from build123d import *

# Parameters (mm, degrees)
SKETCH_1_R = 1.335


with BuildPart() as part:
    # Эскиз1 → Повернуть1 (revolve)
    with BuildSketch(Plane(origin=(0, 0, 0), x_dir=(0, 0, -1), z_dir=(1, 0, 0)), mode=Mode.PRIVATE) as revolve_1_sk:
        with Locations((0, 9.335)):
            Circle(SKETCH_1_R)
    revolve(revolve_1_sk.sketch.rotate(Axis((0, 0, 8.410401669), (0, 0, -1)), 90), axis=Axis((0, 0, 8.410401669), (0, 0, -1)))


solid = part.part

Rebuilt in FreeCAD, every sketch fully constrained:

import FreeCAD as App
import Part
import Sketcher
from FreeCAD import Vector

doc = App.newDocument("Part")
params = doc.addObject("Spreadsheet::Sheet", "Params")
for row, (alias, value) in enumerate([
    ("sketch1_diameter", "2.67 mm"),
    ("revolution_angle", "360 deg"),
], start=1):
    params.set(f"A{row}", alias)
    params.set(f"B{row}", "=" + value)
    params.setAlias(f"B{row}", alias)

body = doc.addObject("PartDesign::Body", "Body")

# Sketch on YZ plane
sketch1 = body.newObject("Sketcher::SketchObject", "Sketch")
sketch1.AttachmentSupport = (doc.getObject("YZ_Plane"), [""])
sketch1.MapMode = "FlatFace"
sketch1.addGeometry(Part.Circle(Vector(9.3, 0, 0), Vector(0, 0, 1), 1.3), False)
sketch1.addConstraint([
    Sketcher.Constraint("PointOnObject", 0, 3, -1),
    Sketcher.Constraint("Diameter", 0, 2.67),
    Sketcher.Constraint("DistanceX", -1, 1, 0, 3, 9.335),
])
sketch1.setExpression("Constraints[1]", "Params.sketch1_diameter")
revolution = body.newObject("PartDesign::Revolution", "Revolution")
revolution.Profile = sketch1
revolution.ReferenceAxis = (sketch1, ["V_Axis"])
revolution.setExpression("Angle", "Params.revolution_angle")

doc.recompute()
